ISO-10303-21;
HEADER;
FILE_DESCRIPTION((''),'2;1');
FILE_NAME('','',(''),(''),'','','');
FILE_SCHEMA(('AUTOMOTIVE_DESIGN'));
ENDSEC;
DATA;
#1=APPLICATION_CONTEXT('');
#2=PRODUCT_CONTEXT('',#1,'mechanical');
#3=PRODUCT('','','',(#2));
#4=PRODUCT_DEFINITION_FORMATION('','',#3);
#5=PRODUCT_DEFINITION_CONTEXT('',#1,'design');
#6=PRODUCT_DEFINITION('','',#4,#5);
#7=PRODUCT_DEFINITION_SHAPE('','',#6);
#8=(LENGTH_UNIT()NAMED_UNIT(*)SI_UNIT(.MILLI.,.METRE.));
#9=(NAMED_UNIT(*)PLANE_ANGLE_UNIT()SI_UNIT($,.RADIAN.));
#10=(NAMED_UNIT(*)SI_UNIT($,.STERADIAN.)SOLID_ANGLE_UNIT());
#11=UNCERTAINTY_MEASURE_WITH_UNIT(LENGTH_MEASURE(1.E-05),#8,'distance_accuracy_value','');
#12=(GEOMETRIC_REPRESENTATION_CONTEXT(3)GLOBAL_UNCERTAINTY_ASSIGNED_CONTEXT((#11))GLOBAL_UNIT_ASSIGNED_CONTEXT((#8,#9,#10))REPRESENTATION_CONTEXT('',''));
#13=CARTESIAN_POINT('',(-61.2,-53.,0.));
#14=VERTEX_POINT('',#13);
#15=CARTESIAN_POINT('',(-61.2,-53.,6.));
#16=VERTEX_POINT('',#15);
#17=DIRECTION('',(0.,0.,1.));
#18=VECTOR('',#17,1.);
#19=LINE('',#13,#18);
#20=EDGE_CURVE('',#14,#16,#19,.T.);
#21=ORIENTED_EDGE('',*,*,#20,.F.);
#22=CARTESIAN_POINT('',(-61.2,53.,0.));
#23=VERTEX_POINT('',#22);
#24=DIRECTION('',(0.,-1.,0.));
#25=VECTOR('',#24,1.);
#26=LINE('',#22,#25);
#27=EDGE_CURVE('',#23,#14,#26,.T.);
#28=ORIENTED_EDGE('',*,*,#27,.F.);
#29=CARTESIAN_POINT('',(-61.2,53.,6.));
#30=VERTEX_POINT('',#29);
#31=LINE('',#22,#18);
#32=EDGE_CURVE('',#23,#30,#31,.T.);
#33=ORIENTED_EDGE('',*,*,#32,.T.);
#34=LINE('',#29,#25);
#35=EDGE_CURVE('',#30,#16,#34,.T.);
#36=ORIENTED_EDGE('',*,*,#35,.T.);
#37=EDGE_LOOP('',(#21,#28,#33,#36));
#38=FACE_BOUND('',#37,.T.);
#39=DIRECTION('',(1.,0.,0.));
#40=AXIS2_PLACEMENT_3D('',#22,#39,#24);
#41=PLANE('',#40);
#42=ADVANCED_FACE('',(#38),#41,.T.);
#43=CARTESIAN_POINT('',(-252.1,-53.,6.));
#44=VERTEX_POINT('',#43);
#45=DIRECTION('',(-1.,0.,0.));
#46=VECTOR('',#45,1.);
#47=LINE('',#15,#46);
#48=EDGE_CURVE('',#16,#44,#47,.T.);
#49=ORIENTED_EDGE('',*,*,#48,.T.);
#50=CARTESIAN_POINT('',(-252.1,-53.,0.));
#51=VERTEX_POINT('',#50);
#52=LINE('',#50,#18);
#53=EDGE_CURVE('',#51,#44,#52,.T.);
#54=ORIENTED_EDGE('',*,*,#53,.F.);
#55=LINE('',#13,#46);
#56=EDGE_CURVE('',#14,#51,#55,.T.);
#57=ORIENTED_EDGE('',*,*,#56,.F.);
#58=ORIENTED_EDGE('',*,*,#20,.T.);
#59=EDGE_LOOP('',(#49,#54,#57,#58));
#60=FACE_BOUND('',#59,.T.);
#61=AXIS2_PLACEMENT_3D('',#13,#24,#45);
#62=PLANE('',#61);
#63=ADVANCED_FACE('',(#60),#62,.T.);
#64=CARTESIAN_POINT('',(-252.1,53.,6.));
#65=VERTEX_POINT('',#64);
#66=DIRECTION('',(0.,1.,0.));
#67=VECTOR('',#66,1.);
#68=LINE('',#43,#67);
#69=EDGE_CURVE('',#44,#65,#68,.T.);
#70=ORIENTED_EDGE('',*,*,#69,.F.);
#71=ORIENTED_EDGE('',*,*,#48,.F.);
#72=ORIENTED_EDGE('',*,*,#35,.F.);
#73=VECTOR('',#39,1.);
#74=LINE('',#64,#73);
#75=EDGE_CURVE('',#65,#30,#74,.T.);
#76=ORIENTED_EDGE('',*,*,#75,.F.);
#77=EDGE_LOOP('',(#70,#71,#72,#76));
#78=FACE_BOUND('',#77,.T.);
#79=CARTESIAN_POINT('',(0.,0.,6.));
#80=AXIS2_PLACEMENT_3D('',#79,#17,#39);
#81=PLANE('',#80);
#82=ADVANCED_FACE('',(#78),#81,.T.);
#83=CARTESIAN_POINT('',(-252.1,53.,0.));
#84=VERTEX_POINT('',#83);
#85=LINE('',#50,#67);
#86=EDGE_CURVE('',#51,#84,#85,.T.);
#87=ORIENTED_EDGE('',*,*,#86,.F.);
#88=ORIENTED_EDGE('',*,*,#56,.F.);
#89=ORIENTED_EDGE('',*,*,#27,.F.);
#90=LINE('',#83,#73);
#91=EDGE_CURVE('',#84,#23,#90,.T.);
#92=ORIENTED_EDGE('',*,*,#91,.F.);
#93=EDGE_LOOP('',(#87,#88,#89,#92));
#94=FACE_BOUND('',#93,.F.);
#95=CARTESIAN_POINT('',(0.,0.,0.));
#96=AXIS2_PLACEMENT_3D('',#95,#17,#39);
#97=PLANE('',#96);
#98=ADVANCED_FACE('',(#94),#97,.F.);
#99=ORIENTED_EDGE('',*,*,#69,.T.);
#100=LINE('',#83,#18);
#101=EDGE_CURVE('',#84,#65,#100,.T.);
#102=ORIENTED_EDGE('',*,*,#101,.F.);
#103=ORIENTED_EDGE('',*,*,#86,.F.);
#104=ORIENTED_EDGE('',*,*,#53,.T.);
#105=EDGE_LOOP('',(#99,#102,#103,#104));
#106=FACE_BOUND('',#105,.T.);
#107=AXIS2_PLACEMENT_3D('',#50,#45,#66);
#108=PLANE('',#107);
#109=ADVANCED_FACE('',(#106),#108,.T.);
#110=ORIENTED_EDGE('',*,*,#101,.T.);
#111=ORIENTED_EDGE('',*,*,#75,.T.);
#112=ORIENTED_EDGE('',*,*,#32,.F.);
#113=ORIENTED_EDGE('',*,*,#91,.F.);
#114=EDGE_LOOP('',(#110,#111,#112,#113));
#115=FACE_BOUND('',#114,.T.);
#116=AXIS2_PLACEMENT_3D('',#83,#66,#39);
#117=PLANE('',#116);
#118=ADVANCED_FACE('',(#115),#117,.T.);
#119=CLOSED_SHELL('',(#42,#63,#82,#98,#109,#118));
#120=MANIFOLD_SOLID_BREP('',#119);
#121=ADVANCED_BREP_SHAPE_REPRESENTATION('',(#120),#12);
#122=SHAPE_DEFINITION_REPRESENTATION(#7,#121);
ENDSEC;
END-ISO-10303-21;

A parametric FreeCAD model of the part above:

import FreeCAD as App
import Part
import Sketcher

V = App.Vector


def add_polygon(sketch, points):
    """Adds a closed chain of lines whose ends are joined by coincident constraints."""
    first, n = sketch.GeometryCount, len(points)
    for a, b in zip(points, points[1:] + points[:1]):
        sketch.addGeometry(Part.LineSegment(App.Vector(*a, 0), App.Vector(*b, 0)), False)
    for i in range(n):
        sketch.addConstraint(Sketcher.Constraint("Coincident", first + i, 2, first + (i + 1) % n, 1))

doc = App.newDocument("Part")
body = doc.addObject("PartDesign::Body", "Body")

# Sketch on XY plane
sketch1 = body.newObject("Sketcher::SketchObject", "Sketch")
sketch1.AttachmentSupport = (doc.getObject("XY_Plane"), [""])
sketch1.MapMode = "FlatFace"
add_polygon(sketch1, [(-252, -53), (-61, -53), (-61, 53), (-252, 53)])  # lines 0-3
sketch1.addConstraint([
    Sketcher.Constraint("Horizontal", 0),
    Sketcher.Constraint("Vertical", 1),
    Sketcher.Constraint("Horizontal", 2),
    Sketcher.Constraint("Vertical", 3),
    Sketcher.Constraint("DistanceY", 1, 1, 1, 2, 106.0),
    Sketcher.Constraint("DistanceX", 0, 1, 0, 2, 190.9),
    Sketcher.Constraint("DistanceY", 0, 2, -1, 1, 53.0),
    Sketcher.Constraint("DistanceX", 0, 2, -1, 1, 61.2),
])
pad1 = body.newObject("PartDesign::Pad", "Pad")
pad1.Profile = sketch1
pad1.Length = 6

doc.recompute()
